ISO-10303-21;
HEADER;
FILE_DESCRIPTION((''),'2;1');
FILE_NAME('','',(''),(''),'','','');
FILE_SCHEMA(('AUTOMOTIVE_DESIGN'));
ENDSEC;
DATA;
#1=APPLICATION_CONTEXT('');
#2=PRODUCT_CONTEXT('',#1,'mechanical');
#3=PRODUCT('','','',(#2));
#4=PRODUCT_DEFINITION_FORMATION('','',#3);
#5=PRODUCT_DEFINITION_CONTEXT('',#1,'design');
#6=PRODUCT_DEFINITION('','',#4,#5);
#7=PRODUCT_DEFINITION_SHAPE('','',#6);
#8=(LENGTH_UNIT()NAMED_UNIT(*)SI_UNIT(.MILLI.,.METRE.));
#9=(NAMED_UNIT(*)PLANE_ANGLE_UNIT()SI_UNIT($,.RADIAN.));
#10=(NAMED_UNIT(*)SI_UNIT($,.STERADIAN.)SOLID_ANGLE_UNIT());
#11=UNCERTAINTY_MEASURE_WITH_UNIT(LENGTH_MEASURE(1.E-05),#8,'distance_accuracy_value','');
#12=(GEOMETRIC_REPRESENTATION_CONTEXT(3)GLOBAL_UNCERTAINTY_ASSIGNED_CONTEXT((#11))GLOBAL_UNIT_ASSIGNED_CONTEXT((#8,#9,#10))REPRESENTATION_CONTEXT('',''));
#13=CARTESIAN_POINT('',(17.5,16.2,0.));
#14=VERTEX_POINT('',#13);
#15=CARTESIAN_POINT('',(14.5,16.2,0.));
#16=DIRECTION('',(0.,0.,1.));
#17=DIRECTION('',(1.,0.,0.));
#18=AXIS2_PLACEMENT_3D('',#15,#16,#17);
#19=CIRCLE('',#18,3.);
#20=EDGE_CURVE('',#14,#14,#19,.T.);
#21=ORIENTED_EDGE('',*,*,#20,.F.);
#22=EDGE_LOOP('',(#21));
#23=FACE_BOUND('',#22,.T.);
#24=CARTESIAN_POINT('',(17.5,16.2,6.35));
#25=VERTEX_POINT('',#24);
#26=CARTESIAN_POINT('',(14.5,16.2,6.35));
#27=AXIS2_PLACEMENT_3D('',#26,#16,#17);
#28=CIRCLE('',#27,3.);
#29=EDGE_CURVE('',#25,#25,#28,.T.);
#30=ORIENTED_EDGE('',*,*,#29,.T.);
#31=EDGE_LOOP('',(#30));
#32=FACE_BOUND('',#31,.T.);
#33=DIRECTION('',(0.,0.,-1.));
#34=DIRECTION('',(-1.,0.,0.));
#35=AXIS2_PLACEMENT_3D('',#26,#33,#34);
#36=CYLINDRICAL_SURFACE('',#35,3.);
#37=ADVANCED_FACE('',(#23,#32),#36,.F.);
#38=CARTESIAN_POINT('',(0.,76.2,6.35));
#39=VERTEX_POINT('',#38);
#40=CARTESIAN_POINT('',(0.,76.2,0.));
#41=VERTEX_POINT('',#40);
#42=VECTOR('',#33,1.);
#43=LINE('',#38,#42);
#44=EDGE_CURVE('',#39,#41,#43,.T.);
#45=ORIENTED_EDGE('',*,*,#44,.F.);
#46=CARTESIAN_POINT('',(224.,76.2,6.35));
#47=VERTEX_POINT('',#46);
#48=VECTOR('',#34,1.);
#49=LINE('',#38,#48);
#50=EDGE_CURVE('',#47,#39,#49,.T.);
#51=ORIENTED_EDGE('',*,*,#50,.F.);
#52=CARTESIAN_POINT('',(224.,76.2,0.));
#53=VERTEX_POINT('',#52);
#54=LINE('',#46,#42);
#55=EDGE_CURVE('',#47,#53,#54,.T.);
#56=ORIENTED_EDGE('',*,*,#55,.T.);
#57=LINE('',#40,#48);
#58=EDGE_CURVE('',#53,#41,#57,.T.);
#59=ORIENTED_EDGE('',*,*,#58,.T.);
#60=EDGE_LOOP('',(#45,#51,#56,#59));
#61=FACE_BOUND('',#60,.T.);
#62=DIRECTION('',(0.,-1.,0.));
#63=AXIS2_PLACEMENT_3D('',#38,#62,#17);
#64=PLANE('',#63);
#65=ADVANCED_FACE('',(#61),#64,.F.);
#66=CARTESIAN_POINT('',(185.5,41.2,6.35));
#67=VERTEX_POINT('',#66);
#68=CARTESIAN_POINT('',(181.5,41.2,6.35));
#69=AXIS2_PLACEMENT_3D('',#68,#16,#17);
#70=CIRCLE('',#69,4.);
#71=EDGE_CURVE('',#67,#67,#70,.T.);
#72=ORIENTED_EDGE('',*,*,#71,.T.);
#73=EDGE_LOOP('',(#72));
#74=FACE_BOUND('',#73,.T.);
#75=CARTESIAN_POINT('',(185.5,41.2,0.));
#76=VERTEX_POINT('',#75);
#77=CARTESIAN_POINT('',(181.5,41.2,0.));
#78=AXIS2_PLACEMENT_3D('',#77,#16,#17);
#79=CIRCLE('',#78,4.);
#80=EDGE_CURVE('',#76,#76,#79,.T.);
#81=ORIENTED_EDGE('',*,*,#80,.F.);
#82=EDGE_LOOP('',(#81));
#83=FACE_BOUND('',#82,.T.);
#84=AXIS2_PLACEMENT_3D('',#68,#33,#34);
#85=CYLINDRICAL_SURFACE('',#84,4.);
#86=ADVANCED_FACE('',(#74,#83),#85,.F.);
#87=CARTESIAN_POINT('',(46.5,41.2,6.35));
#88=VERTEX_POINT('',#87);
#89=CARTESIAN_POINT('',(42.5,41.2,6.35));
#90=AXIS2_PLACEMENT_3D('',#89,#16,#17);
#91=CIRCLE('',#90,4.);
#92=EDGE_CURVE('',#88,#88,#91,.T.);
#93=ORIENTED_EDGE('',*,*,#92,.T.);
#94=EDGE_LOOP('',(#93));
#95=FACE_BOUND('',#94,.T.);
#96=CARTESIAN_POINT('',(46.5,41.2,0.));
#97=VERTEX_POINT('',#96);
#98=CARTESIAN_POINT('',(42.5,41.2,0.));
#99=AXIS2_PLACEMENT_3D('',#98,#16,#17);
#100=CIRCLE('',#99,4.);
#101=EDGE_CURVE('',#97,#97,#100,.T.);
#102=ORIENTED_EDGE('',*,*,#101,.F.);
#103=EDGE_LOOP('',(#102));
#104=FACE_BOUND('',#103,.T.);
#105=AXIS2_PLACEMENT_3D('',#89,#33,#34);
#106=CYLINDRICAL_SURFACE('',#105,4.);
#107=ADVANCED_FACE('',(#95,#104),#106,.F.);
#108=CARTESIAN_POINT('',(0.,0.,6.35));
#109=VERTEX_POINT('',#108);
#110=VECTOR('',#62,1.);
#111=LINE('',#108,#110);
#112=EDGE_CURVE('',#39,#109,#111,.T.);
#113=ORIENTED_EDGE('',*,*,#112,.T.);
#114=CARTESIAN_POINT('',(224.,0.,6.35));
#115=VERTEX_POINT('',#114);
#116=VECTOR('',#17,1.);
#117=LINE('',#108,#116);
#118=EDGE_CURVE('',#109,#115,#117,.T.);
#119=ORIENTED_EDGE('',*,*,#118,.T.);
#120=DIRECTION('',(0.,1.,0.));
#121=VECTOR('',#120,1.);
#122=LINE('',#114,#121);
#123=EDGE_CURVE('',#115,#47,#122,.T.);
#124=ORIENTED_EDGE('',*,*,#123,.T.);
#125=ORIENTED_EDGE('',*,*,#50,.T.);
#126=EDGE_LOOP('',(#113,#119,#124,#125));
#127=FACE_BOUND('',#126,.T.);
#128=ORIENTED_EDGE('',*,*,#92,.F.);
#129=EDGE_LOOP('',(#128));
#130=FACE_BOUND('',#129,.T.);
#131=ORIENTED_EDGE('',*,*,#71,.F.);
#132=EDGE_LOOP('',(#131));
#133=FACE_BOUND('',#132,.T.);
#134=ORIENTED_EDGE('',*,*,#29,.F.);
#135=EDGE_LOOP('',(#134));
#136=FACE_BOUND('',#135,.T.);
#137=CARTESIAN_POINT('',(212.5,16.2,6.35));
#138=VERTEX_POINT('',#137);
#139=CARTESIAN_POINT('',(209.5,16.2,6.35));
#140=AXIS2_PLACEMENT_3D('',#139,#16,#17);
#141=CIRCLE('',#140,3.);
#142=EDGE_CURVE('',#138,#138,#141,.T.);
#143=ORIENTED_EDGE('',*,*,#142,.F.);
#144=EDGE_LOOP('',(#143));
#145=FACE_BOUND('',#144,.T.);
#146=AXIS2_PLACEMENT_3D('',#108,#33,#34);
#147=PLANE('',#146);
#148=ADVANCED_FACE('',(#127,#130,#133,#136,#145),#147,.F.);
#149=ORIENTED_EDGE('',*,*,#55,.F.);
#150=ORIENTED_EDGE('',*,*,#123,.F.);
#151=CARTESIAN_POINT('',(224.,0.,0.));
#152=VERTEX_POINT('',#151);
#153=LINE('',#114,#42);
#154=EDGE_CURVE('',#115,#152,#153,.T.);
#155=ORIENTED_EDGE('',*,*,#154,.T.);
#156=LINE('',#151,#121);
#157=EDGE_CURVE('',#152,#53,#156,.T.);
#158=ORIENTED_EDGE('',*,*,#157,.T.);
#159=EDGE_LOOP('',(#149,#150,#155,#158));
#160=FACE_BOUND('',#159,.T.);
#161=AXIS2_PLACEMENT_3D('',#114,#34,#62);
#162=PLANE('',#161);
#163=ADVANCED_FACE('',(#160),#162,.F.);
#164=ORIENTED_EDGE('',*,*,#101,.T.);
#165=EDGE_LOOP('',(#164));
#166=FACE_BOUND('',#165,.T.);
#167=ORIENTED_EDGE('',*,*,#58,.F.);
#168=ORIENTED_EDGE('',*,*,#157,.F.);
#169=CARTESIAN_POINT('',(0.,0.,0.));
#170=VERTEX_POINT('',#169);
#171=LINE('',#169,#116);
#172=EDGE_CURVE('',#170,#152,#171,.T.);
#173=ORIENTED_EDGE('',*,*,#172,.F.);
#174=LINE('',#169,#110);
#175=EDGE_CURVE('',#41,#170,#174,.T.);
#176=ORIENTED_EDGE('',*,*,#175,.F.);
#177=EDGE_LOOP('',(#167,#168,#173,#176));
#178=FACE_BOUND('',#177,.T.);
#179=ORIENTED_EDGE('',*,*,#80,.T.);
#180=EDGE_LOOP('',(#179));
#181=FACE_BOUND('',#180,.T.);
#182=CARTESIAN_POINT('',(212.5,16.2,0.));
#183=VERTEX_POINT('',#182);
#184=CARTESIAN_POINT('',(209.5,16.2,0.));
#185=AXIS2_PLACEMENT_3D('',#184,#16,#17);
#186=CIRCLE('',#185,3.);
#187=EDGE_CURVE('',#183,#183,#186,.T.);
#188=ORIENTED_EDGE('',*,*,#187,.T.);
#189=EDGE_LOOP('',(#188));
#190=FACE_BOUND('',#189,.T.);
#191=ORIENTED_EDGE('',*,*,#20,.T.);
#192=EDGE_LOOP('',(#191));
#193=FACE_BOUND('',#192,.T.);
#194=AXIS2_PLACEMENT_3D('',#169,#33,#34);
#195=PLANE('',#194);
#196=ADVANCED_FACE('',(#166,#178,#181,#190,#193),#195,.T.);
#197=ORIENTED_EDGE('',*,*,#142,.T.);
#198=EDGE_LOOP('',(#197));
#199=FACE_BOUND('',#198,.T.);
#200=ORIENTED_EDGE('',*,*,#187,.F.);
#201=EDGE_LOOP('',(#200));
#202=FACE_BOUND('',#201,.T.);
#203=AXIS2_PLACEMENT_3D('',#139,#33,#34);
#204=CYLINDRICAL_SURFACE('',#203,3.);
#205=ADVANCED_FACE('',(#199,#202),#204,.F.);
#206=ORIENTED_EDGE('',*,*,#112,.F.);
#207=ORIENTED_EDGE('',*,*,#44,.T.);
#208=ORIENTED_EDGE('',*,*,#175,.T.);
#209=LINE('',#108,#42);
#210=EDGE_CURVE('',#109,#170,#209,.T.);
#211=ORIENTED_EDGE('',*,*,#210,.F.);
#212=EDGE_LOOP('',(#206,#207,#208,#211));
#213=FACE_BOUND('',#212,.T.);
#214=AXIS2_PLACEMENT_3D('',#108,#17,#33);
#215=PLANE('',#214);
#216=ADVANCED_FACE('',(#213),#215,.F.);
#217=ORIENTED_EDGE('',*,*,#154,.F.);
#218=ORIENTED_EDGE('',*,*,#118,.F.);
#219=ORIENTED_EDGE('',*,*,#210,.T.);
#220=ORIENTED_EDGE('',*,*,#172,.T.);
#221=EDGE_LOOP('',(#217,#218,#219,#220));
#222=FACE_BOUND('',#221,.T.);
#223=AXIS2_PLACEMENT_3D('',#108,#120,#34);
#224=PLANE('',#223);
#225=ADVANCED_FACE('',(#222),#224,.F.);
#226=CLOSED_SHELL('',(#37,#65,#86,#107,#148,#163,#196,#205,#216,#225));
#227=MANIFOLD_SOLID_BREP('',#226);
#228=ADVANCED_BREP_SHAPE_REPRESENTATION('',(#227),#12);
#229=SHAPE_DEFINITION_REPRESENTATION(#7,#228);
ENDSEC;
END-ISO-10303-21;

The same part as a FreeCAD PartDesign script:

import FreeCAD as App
import Part
import Sketcher

V = App.Vector
Q = App.Units.Quantity

doc = App.newDocument("Part")
params = doc.addObject("Spreadsheet::Sheet", "Params")
for row, (alias, value) in enumerate([
    ("sketch1_diameter", "6 mm"),
    ("sketch1_diameter2", "8 mm"),
    ("sketch1_width", "224 mm"),
    ("sketch1_height", "76.2 mm"),
    ("pad1_length", "6.35 mm"),
], start=1):
    params.set(f"A{row}", alias)
    params.set(f"B{row}", "=" + value)
    params.setAlias(f"B{row}", alias)

body = doc.addObject("PartDesign::Body", "Body")

# Sketch on XY plane
sketch1 = body.newObject("Sketcher::SketchObject", "Sketch")
sketch1.AttachmentSupport = (doc.getObject("XY_Plane"), [""])
sketch1.MapMode = "FlatFace"
sketch1.addGeometry([
    Part.LineSegment(V(0, 76.2, 0), V(0, 0, 0)),  # 0
    Part.LineSegment(V(0, 0, 0), V(224, 0, 0)),  # 1
    Part.LineSegment(V(224, 0, 0), V(224, 76.2, 0)),  # 2
    Part.LineSegment(V(224, 76.2, 0), V(0, 76.2, 0)),  # 3
    Part.Circle(V(14.5, 16.2, 0), V(0, 0, 1), 3),  # 4
    Part.Circle(V(209.5, 16.2, 0), V(0, 0, 1), 3),  # 5
    Part.Circle(V(42.5, 41.2, 0), V(0, 0, 1), 4),  # 6
    Part.Circle(V(181.5, 41.2, 0), V(0, 0, 1), 4),  # 7
], False)
sketch1.addConstraint([
    Sketcher.Constraint("Coincident", 0, 2, 1, 1),
    Sketcher.Constraint("Coincident", 1, 2, 2, 1),
    Sketcher.Constraint("Coincident", 2, 2, 3, 1),
    Sketcher.Constraint("Coincident", 3, 2, 0, 1),
    Sketcher.Constraint("Vertical", 0),
    Sketcher.Constraint("Horizontal", 1),
    Sketcher.Constraint("Vertical", 2),
    Sketcher.Constraint("Horizontal", 3),
    Sketcher.Constraint("Coincident", 0, 2, -1, 1),
    Sketcher.Constraint("Equal", 4, 5),
    Sketcher.Constraint("Equal", 6, 7),
    Sketcher.Constraint("Horizontal", 4, 3, 5, 3),
    Sketcher.Constraint("Horizontal", 6, 3, 7, 3),
    Sketcher.Constraint("Diameter", 4, Q("6 mm")),
    Sketcher.Constraint("Diameter", 6, Q("8 mm")),
    Sketcher.Constraint("DistanceX", 1, 1, 1, 2, Q("224 mm")),
    Sketcher.Constraint("DistanceY", 0, 2, 0, 1, Q("76.2 mm")),
    Sketcher.Constraint("DistanceX", 4, 3, 5, 3, Q("195 mm")),
    Sketcher.Constraint("DistanceX", 4, 3, 6, 3, Q("28 mm")),
    Sketcher.Constraint("DistanceY", 4, 3, 6, 3, Q("25 mm")),
    Sketcher.Constraint("DistanceX", 7, 3, 5, 3, Q("28 mm")),
    Sketcher.Constraint("DistanceY", 7, 3, 2, 2, Q("35 mm")),
    Sketcher.Constraint("DistanceX", -1, 1, 4, 3, Q("14.5 mm")),
])
sketch1.setExpression("Constraints[13]", "Params.sketch1_diameter")
sketch1.setExpression("Constraints[14]", "Params.sketch1_diameter2")
sketch1.setExpression("Constraints[15]", "Params.sketch1_width")
sketch1.setExpression("Constraints[16]", "Params.sketch1_height")
pad1 = body.newObject("PartDesign::Pad", "Pad")
pad1.Profile = sketch1
pad1.setExpression("Length", "Params.pad1_length")

doc.recompute()
